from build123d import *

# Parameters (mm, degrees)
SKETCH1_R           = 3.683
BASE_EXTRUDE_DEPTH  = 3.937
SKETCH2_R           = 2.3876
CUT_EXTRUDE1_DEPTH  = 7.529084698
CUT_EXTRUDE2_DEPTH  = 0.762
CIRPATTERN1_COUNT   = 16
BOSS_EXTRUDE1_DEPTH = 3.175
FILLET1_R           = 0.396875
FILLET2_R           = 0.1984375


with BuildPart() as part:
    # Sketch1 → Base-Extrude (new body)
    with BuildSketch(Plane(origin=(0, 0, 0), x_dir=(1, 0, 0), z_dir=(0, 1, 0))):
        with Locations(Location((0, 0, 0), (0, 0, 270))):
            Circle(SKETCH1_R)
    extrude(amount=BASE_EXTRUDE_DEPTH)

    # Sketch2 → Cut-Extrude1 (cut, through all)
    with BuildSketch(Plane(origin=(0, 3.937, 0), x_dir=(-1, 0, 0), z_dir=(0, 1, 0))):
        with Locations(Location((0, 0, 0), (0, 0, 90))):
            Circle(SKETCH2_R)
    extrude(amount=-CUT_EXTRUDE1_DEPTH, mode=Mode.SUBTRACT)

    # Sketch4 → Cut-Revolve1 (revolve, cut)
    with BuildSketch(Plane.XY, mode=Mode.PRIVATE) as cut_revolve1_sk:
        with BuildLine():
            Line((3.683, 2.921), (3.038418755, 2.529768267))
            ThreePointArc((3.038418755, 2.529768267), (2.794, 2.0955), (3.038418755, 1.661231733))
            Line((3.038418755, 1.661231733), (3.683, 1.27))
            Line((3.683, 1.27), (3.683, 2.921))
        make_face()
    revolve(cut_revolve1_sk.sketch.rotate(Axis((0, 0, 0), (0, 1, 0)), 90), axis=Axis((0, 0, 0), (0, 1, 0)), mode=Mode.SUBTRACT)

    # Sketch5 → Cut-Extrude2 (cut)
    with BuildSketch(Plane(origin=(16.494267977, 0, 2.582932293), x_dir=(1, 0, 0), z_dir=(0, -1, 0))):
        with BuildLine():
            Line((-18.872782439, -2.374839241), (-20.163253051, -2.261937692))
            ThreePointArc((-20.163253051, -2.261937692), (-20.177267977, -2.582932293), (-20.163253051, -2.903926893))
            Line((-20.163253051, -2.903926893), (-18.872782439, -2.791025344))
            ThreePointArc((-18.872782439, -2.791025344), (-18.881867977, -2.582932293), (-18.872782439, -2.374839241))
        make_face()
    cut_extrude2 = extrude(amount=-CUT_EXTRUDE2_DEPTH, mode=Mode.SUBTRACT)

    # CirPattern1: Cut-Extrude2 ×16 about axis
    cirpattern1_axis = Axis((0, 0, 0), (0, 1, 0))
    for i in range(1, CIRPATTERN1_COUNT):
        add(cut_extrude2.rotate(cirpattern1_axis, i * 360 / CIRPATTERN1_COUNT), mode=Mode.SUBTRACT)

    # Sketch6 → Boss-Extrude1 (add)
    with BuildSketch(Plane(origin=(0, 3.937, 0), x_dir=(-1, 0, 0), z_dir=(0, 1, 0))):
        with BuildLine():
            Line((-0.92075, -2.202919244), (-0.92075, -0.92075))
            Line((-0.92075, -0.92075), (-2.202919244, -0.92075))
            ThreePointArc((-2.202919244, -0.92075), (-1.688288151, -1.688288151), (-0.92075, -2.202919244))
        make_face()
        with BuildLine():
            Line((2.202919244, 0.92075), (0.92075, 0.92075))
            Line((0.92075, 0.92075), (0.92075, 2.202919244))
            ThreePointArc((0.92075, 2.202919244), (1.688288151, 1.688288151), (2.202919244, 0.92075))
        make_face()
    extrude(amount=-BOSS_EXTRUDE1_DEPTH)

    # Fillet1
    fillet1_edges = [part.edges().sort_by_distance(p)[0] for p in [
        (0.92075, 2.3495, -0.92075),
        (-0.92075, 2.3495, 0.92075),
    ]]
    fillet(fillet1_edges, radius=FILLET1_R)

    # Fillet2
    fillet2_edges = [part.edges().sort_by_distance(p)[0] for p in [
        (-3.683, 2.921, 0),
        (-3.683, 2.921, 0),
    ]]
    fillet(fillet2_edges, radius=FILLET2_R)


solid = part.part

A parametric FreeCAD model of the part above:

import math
import FreeCAD as App
import Part
import Sketcher

V = App.Vector
Q = App.Units.Quantity


def edges_at(feature, points):
    """Names of the edges that pass closest to the given points."""
    edges = feature.Shape.Edges
    near = lambda p: min(range(len(edges)), key=lambda i: edges[i].distToShape(Part.Vertex(*p))[0])
    return sorted({f"Edge{near(p) + 1}" for p in points})

doc = App.newDocument("Part")
body = doc.addObject("PartDesign::Body", "Body")

# Sketch on XZ plane
sketch1 = body.newObject("Sketcher::SketchObject", "Sketch")
sketch1.AttachmentSupport = (doc.getObject("XZ_Plane"), [""])
sketch1.MapMode = "FlatFace"
sketch1.addGeometry(Part.Circle(V(0, 0, 0), V(0, 0, 1), 3.683), False)
sketch1.addConstraint([
    Sketcher.Constraint("Coincident", 0, 3, -1, 1),
    Sketcher.Constraint("Diameter", 0, Q("0.29 in")),
])
pad1 = body.newObject("PartDesign::Pad", "Pad")
pad1.Profile = sketch1
pad1.Length = Q("0.155 in")
pad1.Reversed = True

# Sketch on XZ plane
sketch2 = body.newObject("Sketcher::SketchObject", "Sketch001")
sketch2.AttachmentSupport = (doc.getObject("XZ_Plane"), [""])
sketch2.MapMode = "FlatFace"
sketch2.AttachmentOffset = App.Placement(V(0, 0, -0.155 * 25.4), App.Rotation())
sketch2.addGeometry(Part.Circle(V(0, 0, 0), V(0, 0, 1), 2.3876), False)
sketch2.addConstraint([
    Sketcher.Constraint("Coincident", 0, 3, -1, 1),
    Sketcher.Constraint("Diameter", 0, Q("0.188 in")),
])
pocket1 = body.newObject("PartDesign::Pocket", "Pocket")
pocket1.Profile = sketch2
pocket1.Type = "ThroughAll"
pocket1.Reversed = True

# Sketch on XY plane
sketch3 = body.newObject("Sketcher::SketchObject", "Sketch002")
sketch3.AttachmentSupport = (doc.getObject("XY_Plane"), [""])
sketch3.MapMode = "FlatFace"
sketch3.addGeometry([
    Part.LineSegment(V(3.683, 2.921, 0), V(3.038419, 2.529768, 0)),
    Part.ArcOfCircle(Part.Circle(V(3.302, 2.0955, 0), V(0, 0, 1), 0.508), math.radians(121.255862), math.radians(238.744138)),
    Part.LineSegment(V(3.038419, 1.661232, 0), V(3.683, 1.27, 0)),
    Part.LineSegment(V(3.683, 1.27, 0), V(3.683, 2.921, 0)),
], False)
sketch3.addConstraint([
    Sketcher.Constraint("Tangent", 0, 2, 1, 1),
    Sketcher.Constraint("Tangent", 1, 2, 2, 1),
    Sketcher.Constraint("Coincident", 2, 2, 3, 1),
    Sketcher.Constraint("Coincident", 3, 2, 0, 1),
    Sketcher.Constraint("Vertical", 3),
    Sketcher.Constraint("Vertical", 0, 2, 1, 2),
    Sketcher.Constraint("Radius", 1, Q("0.02 in")),
    Sketcher.Constraint("DistanceY", 3, 1, 3, 2, Q("0.065 in")),
    Sketcher.Constraint("DistanceX", -1, 1, 1, 3, Q("0.13 in")),
    Sketcher.Constraint("DistanceY", -1, 1, 2, 2, Q("0.05 in")),
    Sketcher.Constraint("DistanceX", -1, 1, 2, 2, Q("0.145 in")),
])
groove = body.newObject("PartDesign::Groove", "Groove")
groove.Profile = sketch3
groove.ReferenceAxis = (sketch3, ["V_Axis"])
groove.Angle = 360

# Sketch on XZ plane
sketch4 = body.newObject("Sketcher::SketchObject", "Sketch003")
sketch4.AttachmentSupport = (doc.getObject("XZ_Plane"), [""])
sketch4.MapMode = "FlatFace"
sketch4.addGeometry([
    Part.LineSegment(V(-2.378514, 0.208093, 0), V(-3.668985, 0.320995, 0)),
    Part.ArcOfCircle(Part.Circle(V(0, 0, 0), V(0, 0, 1), 3.683), math.radians(175), math.radians(185)),
    Part.LineSegment(V(-3.668985, -0.320995, 0), V(-2.378514, -0.208093, 0)),
    Part.ArcOfCircle(Part.Circle(V(0, 0, 0), V(0, 0, 1), 2.3876), math.radians(175), math.radians(185)),
], False)
sketch4.addConstraint([
    Sketcher.Constraint("Coincident", 0, 2, 1, 1),
    Sketcher.Constraint("Coincident", 1, 2, 2, 1),
    Sketcher.Constraint("Coincident", 2, 2, 3, 2),
    Sketcher.Constraint("Coincident", 3, 1, 0, 1),
    Sketcher.Constraint("Coincident", 1, 3, -1, 1),
    Sketcher.Constraint("Coincident", 3, 3, -1, 1),
    Sketcher.Constraint("Vertical", 0, 2, 1, 2),
    Sketcher.Constraint("Vertical", 2, 2, 3, 1),
    Sketcher.Constraint("Angle", 0, Q("175 deg")),
    Sketcher.Constraint("Radius", 1, Q("0.145 in")),
    Sketcher.Constraint("Radius", 3, Q("0.094 in")),
    Sketcher.Constraint("DistanceY", 1, 2, 0, 2, Q("0.641989 mm")),
])
pocket2 = body.newObject("PartDesign::Pocket", "Pocket001")
pocket2.Profile = sketch4
pocket2.Length = Q("0.03 in")
doc.recompute()

polarpattern = body.newObject("PartDesign::PolarPattern", "PolarPattern")
polarpattern.Originals = [pocket2]
polarpattern.Axis = (doc.getObject("Y_Axis"), [""])
polarpattern.Angle = 360
polarpattern.Occurrences = 16
body.Tip = polarpattern

# Sketch on XZ plane
sketch5 = body.newObject("Sketcher::SketchObject", "Sketch004")
sketch5.AttachmentSupport = (doc.getObject("XZ_Plane"), [""])
sketch5.MapMode = "FlatFace"
sketch5.AttachmentOffset = App.Placement(V(0, 0, -0.155 * 25.4), App.Rotation())
sketch5.addGeometry([
    Part.LineSegment(V(0.92075, -2.202919, 0), V(0.92075, -0.92075, 0)),  # 0
    Part.LineSegment(V(0.92075, -0.92075, 0), V(2.202919, -0.92075, 0)),  # 1
    Part.ArcOfCircle(Part.Circle(V(0, 0, 0), V(0, 0, 1), 2.3876), math.radians(-67.316628), math.radians(-22.683372)),  # 2
    Part.LineSegment(V(-0.92075, 0.92075, 0), V(-2.202919, 0.92075, 0)),  # 3
    Part.ArcOfCircle(Part.Circle(V(0, 0, 0), V(0, 0, 1), 2.3876), math.radians(112.683372), math.radians(157.316628)),  # 4
    Part.LineSegment(V(-0.92075, 2.202919, 0), V(-0.92075, 0.92075, 0)),  # 5
], False)
sketch5.addConstraint([
    Sketcher.Constraint("Coincident", 0, 2, 1, 1),
    Sketcher.Constraint("Coincident", 1, 2, 2, 2),
    Sketcher.Constraint("Coincident", 2, 1, 0, 1),
    Sketcher.Constraint("Coincident", 3, 2, 4, 2),
    Sketcher.Constraint("Coincident", 4, 1, 5, 1),
    Sketcher.Constraint("Coincident", 5, 2, 3, 1),
    Sketcher.Constraint("Vertical", 0),
    Sketcher.Constraint("Horizontal", 1),
    Sketcher.Constraint("Horizontal", 3),
    Sketcher.Constraint("Vertical", 5),
    Sketcher.Constraint("Coincident", 2, 3, -1, 1),
    Sketcher.Constraint("Coincident", 4, 3, -1, 1),
    Sketcher.Constraint("Equal", 2, 4),
    Sketcher.Constraint("Symmetric", 0, 2, 5, 2, -1, 1),
    Sketcher.Constraint("Equal", 3, 0),
    Sketcher.Constraint("Radius", 2, Q("0.094 in")),
    Sketcher.Constraint("DistanceY", 0, 2, 3, 2, Q("0.0725 in")),
])
pad2 = body.newObject("PartDesign::Pad", "Pad001")
pad2.Profile = sketch5
pad2.Length = Q("0.125 in")
doc.recompute()

fillet = body.newObject("PartDesign::Fillet", "Fillet")
fillet.Base = (pad2, edges_at(pad2, [(0.921, 2.349, -0.921), (-0.921, 2.349, 0.921)]))
fillet.Radius = Q("0.015625 in")
doc.recompute()

fillet2 = body.newObject("PartDesign::Fillet", "Fillet001")
fillet2.Base = (fillet, edges_at(fillet, [(-3.683, 2.921, 0), (-3.683, 2.921, 0)]))
fillet2.Radius = 0.198437

doc.recompute()
